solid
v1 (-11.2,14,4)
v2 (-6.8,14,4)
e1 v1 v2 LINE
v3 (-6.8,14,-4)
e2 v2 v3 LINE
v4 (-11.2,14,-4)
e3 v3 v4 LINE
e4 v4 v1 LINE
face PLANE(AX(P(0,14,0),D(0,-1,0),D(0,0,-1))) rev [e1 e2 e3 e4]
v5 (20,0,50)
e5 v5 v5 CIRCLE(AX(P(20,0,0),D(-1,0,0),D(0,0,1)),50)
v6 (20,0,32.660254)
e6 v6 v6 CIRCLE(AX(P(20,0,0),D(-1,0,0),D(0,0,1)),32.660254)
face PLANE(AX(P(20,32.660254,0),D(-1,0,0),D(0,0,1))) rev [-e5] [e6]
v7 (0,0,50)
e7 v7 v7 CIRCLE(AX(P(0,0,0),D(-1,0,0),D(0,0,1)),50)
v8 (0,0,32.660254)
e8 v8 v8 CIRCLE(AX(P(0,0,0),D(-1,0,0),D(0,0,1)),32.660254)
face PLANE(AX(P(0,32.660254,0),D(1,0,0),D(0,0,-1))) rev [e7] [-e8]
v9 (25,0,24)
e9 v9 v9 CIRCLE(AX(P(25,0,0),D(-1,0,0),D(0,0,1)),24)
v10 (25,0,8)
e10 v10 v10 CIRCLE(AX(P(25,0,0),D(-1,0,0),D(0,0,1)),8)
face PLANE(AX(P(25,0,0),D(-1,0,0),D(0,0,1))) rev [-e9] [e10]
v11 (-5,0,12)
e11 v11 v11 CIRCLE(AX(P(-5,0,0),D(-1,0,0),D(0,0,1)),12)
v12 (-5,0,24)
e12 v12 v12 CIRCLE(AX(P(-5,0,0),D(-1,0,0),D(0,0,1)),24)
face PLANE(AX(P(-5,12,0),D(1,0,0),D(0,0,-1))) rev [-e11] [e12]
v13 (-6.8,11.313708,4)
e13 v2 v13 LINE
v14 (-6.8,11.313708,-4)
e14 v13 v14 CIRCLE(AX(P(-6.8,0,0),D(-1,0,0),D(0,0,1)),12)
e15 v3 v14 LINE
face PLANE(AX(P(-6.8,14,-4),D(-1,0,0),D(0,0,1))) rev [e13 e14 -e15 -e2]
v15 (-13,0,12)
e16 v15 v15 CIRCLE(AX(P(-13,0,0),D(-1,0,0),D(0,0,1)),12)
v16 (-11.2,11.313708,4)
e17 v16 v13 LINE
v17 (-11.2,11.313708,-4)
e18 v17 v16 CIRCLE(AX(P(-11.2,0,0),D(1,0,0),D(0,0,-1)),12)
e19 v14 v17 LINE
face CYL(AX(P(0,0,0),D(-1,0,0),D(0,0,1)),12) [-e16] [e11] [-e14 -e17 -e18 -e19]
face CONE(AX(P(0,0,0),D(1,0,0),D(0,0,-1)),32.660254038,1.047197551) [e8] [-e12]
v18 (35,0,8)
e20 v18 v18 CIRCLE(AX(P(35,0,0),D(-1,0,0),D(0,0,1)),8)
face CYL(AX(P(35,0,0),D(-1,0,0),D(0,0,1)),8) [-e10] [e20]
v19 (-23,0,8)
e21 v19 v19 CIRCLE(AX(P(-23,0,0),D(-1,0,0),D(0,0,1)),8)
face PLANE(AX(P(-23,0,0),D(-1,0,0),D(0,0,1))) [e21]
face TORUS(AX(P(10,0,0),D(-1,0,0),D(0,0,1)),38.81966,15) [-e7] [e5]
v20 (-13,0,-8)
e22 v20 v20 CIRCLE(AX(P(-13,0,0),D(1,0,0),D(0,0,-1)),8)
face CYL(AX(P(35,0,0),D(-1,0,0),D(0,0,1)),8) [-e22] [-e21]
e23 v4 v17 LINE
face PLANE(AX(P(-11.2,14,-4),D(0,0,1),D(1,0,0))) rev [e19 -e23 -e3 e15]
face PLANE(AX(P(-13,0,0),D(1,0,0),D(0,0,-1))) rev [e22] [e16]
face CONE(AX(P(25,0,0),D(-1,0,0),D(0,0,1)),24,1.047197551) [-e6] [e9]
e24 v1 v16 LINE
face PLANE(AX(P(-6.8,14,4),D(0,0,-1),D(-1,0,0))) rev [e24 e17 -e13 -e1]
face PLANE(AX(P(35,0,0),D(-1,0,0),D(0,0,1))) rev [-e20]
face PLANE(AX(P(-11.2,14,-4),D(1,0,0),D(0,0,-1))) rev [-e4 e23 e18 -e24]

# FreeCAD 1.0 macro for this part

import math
import FreeCAD as App
import Part
import Sketcher
Q = App.Units.Quantity


def add_polygon(sketch, points):
    """Adds a closed chain of lines whose ends are joined by coincident constraints."""
    first, n = sketch.GeometryCount, len(points)
    for a, b in zip(points, points[1:] + points[:1]):
        sketch.addGeometry(Part.LineSegment(App.Vector(*a, 0), App.Vector(*b, 0)), False)
    for i in range(n):
        sketch.addConstraint(Sketcher.Constraint("Coincident", first + i, 2, first + (i + 1) % n, 1))

doc = App.newDocument("Part")
params = doc.addObject("Spreadsheet::Sheet", "Params")
for row, (alias, value) in enumerate([
    ("sketch1_radius", "15 mm"),
    ("sketch1_width", "8 mm"),
    ("sketch1_width2", "38 mm"),
    ("sketch1_height", "24 mm"),
    ("sketch1_length", "10 mm"),
    ("revolution_angle", "360 deg"),
    ("sketch2_diameter", "16 mm"),
    ("pad1_length", "10 mm"),
    ("pad1_length2", "48 mm"),
    ("sketch3_height", "8 mm"),
    ("sketch3_width", "4.4 mm"),
    ("pad2_length", "14 mm"),
], start=1):
    params.set(f"A{row}", alias)
    params.set(f"B{row}", "=" + value)
    params.setAlias(f"B{row}", alias)

body = doc.addObject("PartDesign::Body", "Body")

sketch1 = body.newObject("Sketcher::SketchObject", "Sketch")
sketch1.AttachmentSupport = (doc.getObject("XY_Plane"), [""])
sketch1.MapMode = "FlatFace"
sketch1.addGeometry(Part.LineSegment(App.Vector(25, 0, 0), App.Vector(25, 24, 0)), False)
sketch1.addGeometry(Part.LineSegment(App.Vector(25, 24, 0), App.Vector(20, 33, 0)), False)
sketch1.addGeometry(Part.LineSegment(App.Vector(20, 33, 0), App.Vector(20, 50, 0)), False)
sketch1.addGeometry(Part.ArcOfCircle(Part.Circle(App.Vector(10, 39, 0), App.Vector(0, 0, 1), 15), math.radians(48), math.radians(132)), False)
sketch1.addGeometry(Part.LineSegment(App.Vector(0, 50, 0), App.Vector(0, 33, 0)), False)
sketch1.addGeometry(Part.LineSegment(App.Vector(0, 33, 0), App.Vector(-5, 24, 0)), False)
sketch1.addGeometry(Part.LineSegment(App.Vector(-5, 24, 0), App.Vector(-5, 12, 0)), False)
sketch1.addGeometry(Part.LineSegment(App.Vector(-5, 12, 0), App.Vector(-13, 12, 0)), False)
sketch1.addGeometry(Part.LineSegment(App.Vector(-13, 12, 0), App.Vector(-13, 0, 0)), False)
sketch1.addGeometry(Part.LineSegment(App.Vector(-13, 0, 0), App.Vector(25, 0, 0)), False)
sketch1.addConstraint(Sketcher.Constraint("Coincident", 0, 2, 1, 1))
sketch1.addConstraint(Sketcher.Constraint("Coincident", 1, 2, 2, 1))
sketch1.addConstraint(Sketcher.Constraint("Coincident", 2, 2, 3, 1))
sketch1.addConstraint(Sketcher.Constraint("Coincident", 3, 2, 4, 1))
sketch1.addConstraint(Sketcher.Constraint("Coincident", 4, 2, 5, 1))
sketch1.addConstraint(Sketcher.Constraint("Coincident", 5, 2, 6, 1))
sketch1.addConstraint(Sketcher.Constraint("Coincident", 6, 2, 7, 1))
sketch1.addConstraint(Sketcher.Constraint("Coincident", 7, 2, 8, 1))
sketch1.addConstraint(Sketcher.Constraint("Coincident", 8, 2, 9, 1))
sketch1.addConstraint(Sketcher.Constraint("Coincident", 9, 2, 0, 1))
sketch1.addConstraint(Sketcher.Constraint("Vertical", 0))
sketch1.addConstraint(Sketcher.Constraint("Vertical", 2))
sketch1.addConstraint(Sketcher.Constraint("Vertical", 4))
sketch1.addConstraint(Sketcher.Constraint("Vertical", 6))
sketch1.addConstraint(Sketcher.Constraint("Horizontal", 7))
sketch1.addConstraint(Sketcher.Constraint("Vertical", 8))
sketch1.addConstraint(Sketcher.Constraint("Horizontal", 9))
sketch1.addConstraint(Sketcher.Constraint("PointOnObject", 3, 2, -2))
sketch1.addConstraint(Sketcher.Constraint("PointOnObject", 8, 2, -1))
sketch1.addConstraint(Sketcher.Constraint("Horizontal", 2, 2, 3, 2))
sketch1.addConstraint(Sketcher.Constraint("Horizontal", 1, 2, 4, 2))
sketch1.addConstraint(Sketcher.Constraint("Horizontal", 0, 2, 5, 2))
sketch1.addConstraint(Sketcher.Constraint("Equal", 6, 8))
sketch1.addConstraint(Sketcher.Constraint("Equal", 1, 5))
sketch1.addConstraint(Sketcher.Constraint("Radius", 3, Q("15 mm")))
sketch1.addConstraint(Sketcher.Constraint("DistanceX", 7, 2, 7, 1, Q("8 mm")))
sketch1.addConstraint(Sketcher.Constraint("DistanceX", 9, 1, 9, 2, Q("38 mm")))
sketch1.addConstraint(Sketcher.Constraint("DistanceY", 0, 1, 0, 2, Q("24 mm")))
sketch1.addConstraint(Sketcher.Constraint("Angle", 1, Q("120 deg")))
sketch1.addConstraint(Sketcher.Constraint("Distance", 1, Q("10 mm")))
sketch1.addConstraint(Sketcher.Constraint("DistanceY", -1, 1, 2, 2, Q("50 mm")))
sketch1.setExpression("Constraints[24]", "Params.sketch1_radius")
sketch1.setExpression("Constraints[25]", "Params.sketch1_width")
sketch1.setExpression("Constraints[26]", "Params.sketch1_width2")
sketch1.setExpression("Constraints[27]", "Params.sketch1_height")
sketch1.setExpression("Constraints[29]", "Params.sketch1_length")
revolution = body.newObject("PartDesign::Revolution", "Revolution")
revolution.Profile = sketch1
revolution.ReferenceAxis = (sketch1, ["H_Axis"])
revolution.setExpression("Angle", "Params.revolution_angle")

sketch2 = body.newObject("Sketcher::SketchObject", "Sketch001")
sketch2.AttachmentSupport = (doc.getObject("YZ_Plane"), [""])
sketch2.MapMode = "FlatFace"
sketch2.AttachmentOffset = App.Placement(App.Vector(0, 0, -13), App.Rotation())
sketch2.addGeometry(Part.Circle(App.Vector(0, 0, 0), App.Vector(0, 0, 1), 8), False)
sketch2.addConstraint(Sketcher.Constraint("Coincident", 0, 3, -1, 1))
sketch2.addConstraint(Sketcher.Constraint("Diameter", 0, Q("16 mm")))
sketch2.setExpression("Constraints[1]", "Params.sketch2_diameter")
pad1 = body.newObject("PartDesign::Pad", "Pad")
pad1.Profile = sketch2
pad1.Type = "TwoLengths"
pad1.setExpression("Length", "Params.pad1_length")
pad1.setExpression("Length2", "Params.pad1_length2")
pad1.Reversed = True

sketch3 = body.newObject("Sketcher::SketchObject", "Sketch002")
sketch3.AttachmentSupport = (doc.getObject("XZ_Plane"), [""])
sketch3.MapMode = "FlatFace"
add_polygon(sketch3, [(-11.2, -4), (-11.2, 4), (-6.8, 4), (-6.8, -4)])
sketch3.addConstraint(Sketcher.Constraint("Vertical", 0))
sketch3.addConstraint(Sketcher.Constraint("Horizontal", 1))
sketch3.addConstraint(Sketcher.Constraint("Vertical", 2))
sketch3.addConstraint(Sketcher.Constraint("Horizontal", 3))
sketch3.addConstraint(Sketcher.Constraint("DistanceY", 0, 1, 0, 2, Q("8 mm")))
sketch3.addConstraint(Sketcher.Constraint("DistanceX", 1, 1, 1, 2, Q("4.4 mm")))
sketch3.addConstraint(Sketcher.Constraint("DistanceY", -1, 1, 0, 2, Q("4 mm")))
sketch3.addConstraint(Sketcher.Constraint("DistanceX", 0, 2, -1, 1, Q("11.2 mm")))
sketch3.setExpression("Constraints[8]", "Params.sketch3_height")
sketch3.setExpression("Constraints[9]", "Params.sketch3_width")
pad2 = body.newObject("PartDesign::Pad", "Pad001")
pad2.Profile = sketch3
pad2.setExpression("Length", "Params.pad2_length")
pad2.Reversed = True

doc.recompute()
